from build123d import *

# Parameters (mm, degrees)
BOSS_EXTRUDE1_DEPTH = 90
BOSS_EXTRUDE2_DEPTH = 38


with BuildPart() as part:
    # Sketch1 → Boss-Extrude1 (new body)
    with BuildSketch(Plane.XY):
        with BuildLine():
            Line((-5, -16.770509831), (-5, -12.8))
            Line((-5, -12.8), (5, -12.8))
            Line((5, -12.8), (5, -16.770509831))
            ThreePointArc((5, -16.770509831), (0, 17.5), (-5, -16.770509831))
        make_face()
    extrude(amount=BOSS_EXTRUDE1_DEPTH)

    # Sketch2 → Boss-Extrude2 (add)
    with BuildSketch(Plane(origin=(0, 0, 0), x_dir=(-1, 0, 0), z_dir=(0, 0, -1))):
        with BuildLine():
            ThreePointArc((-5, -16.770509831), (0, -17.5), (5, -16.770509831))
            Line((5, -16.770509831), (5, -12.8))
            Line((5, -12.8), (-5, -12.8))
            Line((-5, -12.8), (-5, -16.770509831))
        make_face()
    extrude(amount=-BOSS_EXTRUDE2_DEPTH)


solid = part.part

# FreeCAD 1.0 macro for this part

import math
import FreeCAD as App
import Part
import Sketcher

V = App.Vector

doc = App.newDocument("Part")
body = doc.addObject("PartDesign::Body", "Body")

sketch1 = body.newObject("Sketcher::SketchObject", "Sketch")
sketch1.AttachmentSupport = (doc.getObject("XY_Plane"), [""])
sketch1.MapMode = "FlatFace"
sketch1.addGeometry(Part.LineSegment(V(-5, -16.77051, 0), V(-5, -12.8, 0)), False)
sketch1.addGeometry(Part.LineSegment(V(-5, -12.8, 0), V(5, -12.8, 0)), False)
sketch1.addGeometry(Part.LineSegment(V(5, -12.8, 0), V(5, -16.77051, 0)), False)
sketch1.addGeometry(Part.ArcOfCircle(Part.Circle(V(0, 0, 0), V(0, 0, 1), 17.5), math.radians(-73.39845), math.radians(253.39845)), False)
sketch1.addConstraint(Sketcher.Constraint("Coincident", 0, 2, 1, 1))
sketch1.addConstraint(Sketcher.Constraint("Coincident", 1, 2, 2, 1))
sketch1.addConstraint(Sketcher.Constraint("Coincident", 2, 2, 3, 1))
sketch1.addConstraint(Sketcher.Constraint("Coincident", 3, 2, 0, 1))
sketch1.addConstraint(Sketcher.Constraint("Vertical", 0))
sketch1.addConstraint(Sketcher.Constraint("Horizontal", 1))
sketch1.addConstraint(Sketcher.Constraint("Vertical", 2))
sketch1.addConstraint(Sketcher.Constraint("Coincident", 3, 3, -1, 1))
sketch1.addConstraint(Sketcher.Constraint("Horizontal", 2, 2, 3, 2))
sketch1.addConstraint(Sketcher.Constraint("Radius", 3, 17.5))
sketch1.addConstraint(Sketcher.Constraint("DistanceX", 1, 1, 1, 2, 10.0))
sketch1.addConstraint(Sketcher.Constraint("DistanceY", 0, 2, -1, 1, 12.8))
pad1 = body.newObject("PartDesign::Pad", "Pad")
pad1.Profile = sketch1
pad1.Length = 90

sketch2 = body.newObject("Sketcher::SketchObject", "Sketch001")
sketch2.AttachmentSupport = (doc.getObject("XY_Plane"), [""])
sketch2.MapMode = "FlatFace"
sketch2.addGeometry(Part.ArcOfCircle(Part.Circle(V(0, 0, 0), V(0, 0, 1), 17.5), math.radians(-106.60155), math.radians(-73.39845)), False)
sketch2.addGeometry(Part.LineSegment(V(-5, -16.77051, 0), V(-5, -12.8, 0)), False)
sketch2.addGeometry(Part.LineSegment(V(-5, -12.8, 0), V(5, -12.8, 0)), False)
sketch2.addGeometry(Part.LineSegment(V(5, -12.8, 0), V(5, -16.77051, 0)), False)
sketch2.addConstraint(Sketcher.Constraint("Coincident", 0, 1, 1, 1))
sketch2.addConstraint(Sketcher.Constraint("Coincident", 1, 2, 2, 1))
sketch2.addConstraint(Sketcher.Constraint("Coincident", 2, 2, 3, 1))
sketch2.addConstraint(Sketcher.Constraint("Coincident", 3, 2, 0, 2))
sketch2.addConstraint(Sketcher.Constraint("Vertical", 1))
sketch2.addConstraint(Sketcher.Constraint("Horizontal", 2))
sketch2.addConstraint(Sketcher.Constraint("Vertical", 3))
sketch2.addConstraint(Sketcher.Constraint("Coincident", 0, 3, -1, 1))
sketch2.addConstraint(Sketcher.Constraint("Horizontal", 0, 1, 3, 2))
sketch2.addConstraint(Sketcher.Constraint("Radius", 0, 17.5))
sketch2.addConstraint(Sketcher.Constraint("DistanceX", 2, 1, 2, 2, 10.0))
sketch2.addConstraint(Sketcher.Constraint("DistanceY", 1, 2, -1, 1, 12.8))
pad2 = body.newObject("PartDesign::Pad", "Pad001")
pad2.Profile = sketch2
pad2.Length = 38

doc.recompute()
